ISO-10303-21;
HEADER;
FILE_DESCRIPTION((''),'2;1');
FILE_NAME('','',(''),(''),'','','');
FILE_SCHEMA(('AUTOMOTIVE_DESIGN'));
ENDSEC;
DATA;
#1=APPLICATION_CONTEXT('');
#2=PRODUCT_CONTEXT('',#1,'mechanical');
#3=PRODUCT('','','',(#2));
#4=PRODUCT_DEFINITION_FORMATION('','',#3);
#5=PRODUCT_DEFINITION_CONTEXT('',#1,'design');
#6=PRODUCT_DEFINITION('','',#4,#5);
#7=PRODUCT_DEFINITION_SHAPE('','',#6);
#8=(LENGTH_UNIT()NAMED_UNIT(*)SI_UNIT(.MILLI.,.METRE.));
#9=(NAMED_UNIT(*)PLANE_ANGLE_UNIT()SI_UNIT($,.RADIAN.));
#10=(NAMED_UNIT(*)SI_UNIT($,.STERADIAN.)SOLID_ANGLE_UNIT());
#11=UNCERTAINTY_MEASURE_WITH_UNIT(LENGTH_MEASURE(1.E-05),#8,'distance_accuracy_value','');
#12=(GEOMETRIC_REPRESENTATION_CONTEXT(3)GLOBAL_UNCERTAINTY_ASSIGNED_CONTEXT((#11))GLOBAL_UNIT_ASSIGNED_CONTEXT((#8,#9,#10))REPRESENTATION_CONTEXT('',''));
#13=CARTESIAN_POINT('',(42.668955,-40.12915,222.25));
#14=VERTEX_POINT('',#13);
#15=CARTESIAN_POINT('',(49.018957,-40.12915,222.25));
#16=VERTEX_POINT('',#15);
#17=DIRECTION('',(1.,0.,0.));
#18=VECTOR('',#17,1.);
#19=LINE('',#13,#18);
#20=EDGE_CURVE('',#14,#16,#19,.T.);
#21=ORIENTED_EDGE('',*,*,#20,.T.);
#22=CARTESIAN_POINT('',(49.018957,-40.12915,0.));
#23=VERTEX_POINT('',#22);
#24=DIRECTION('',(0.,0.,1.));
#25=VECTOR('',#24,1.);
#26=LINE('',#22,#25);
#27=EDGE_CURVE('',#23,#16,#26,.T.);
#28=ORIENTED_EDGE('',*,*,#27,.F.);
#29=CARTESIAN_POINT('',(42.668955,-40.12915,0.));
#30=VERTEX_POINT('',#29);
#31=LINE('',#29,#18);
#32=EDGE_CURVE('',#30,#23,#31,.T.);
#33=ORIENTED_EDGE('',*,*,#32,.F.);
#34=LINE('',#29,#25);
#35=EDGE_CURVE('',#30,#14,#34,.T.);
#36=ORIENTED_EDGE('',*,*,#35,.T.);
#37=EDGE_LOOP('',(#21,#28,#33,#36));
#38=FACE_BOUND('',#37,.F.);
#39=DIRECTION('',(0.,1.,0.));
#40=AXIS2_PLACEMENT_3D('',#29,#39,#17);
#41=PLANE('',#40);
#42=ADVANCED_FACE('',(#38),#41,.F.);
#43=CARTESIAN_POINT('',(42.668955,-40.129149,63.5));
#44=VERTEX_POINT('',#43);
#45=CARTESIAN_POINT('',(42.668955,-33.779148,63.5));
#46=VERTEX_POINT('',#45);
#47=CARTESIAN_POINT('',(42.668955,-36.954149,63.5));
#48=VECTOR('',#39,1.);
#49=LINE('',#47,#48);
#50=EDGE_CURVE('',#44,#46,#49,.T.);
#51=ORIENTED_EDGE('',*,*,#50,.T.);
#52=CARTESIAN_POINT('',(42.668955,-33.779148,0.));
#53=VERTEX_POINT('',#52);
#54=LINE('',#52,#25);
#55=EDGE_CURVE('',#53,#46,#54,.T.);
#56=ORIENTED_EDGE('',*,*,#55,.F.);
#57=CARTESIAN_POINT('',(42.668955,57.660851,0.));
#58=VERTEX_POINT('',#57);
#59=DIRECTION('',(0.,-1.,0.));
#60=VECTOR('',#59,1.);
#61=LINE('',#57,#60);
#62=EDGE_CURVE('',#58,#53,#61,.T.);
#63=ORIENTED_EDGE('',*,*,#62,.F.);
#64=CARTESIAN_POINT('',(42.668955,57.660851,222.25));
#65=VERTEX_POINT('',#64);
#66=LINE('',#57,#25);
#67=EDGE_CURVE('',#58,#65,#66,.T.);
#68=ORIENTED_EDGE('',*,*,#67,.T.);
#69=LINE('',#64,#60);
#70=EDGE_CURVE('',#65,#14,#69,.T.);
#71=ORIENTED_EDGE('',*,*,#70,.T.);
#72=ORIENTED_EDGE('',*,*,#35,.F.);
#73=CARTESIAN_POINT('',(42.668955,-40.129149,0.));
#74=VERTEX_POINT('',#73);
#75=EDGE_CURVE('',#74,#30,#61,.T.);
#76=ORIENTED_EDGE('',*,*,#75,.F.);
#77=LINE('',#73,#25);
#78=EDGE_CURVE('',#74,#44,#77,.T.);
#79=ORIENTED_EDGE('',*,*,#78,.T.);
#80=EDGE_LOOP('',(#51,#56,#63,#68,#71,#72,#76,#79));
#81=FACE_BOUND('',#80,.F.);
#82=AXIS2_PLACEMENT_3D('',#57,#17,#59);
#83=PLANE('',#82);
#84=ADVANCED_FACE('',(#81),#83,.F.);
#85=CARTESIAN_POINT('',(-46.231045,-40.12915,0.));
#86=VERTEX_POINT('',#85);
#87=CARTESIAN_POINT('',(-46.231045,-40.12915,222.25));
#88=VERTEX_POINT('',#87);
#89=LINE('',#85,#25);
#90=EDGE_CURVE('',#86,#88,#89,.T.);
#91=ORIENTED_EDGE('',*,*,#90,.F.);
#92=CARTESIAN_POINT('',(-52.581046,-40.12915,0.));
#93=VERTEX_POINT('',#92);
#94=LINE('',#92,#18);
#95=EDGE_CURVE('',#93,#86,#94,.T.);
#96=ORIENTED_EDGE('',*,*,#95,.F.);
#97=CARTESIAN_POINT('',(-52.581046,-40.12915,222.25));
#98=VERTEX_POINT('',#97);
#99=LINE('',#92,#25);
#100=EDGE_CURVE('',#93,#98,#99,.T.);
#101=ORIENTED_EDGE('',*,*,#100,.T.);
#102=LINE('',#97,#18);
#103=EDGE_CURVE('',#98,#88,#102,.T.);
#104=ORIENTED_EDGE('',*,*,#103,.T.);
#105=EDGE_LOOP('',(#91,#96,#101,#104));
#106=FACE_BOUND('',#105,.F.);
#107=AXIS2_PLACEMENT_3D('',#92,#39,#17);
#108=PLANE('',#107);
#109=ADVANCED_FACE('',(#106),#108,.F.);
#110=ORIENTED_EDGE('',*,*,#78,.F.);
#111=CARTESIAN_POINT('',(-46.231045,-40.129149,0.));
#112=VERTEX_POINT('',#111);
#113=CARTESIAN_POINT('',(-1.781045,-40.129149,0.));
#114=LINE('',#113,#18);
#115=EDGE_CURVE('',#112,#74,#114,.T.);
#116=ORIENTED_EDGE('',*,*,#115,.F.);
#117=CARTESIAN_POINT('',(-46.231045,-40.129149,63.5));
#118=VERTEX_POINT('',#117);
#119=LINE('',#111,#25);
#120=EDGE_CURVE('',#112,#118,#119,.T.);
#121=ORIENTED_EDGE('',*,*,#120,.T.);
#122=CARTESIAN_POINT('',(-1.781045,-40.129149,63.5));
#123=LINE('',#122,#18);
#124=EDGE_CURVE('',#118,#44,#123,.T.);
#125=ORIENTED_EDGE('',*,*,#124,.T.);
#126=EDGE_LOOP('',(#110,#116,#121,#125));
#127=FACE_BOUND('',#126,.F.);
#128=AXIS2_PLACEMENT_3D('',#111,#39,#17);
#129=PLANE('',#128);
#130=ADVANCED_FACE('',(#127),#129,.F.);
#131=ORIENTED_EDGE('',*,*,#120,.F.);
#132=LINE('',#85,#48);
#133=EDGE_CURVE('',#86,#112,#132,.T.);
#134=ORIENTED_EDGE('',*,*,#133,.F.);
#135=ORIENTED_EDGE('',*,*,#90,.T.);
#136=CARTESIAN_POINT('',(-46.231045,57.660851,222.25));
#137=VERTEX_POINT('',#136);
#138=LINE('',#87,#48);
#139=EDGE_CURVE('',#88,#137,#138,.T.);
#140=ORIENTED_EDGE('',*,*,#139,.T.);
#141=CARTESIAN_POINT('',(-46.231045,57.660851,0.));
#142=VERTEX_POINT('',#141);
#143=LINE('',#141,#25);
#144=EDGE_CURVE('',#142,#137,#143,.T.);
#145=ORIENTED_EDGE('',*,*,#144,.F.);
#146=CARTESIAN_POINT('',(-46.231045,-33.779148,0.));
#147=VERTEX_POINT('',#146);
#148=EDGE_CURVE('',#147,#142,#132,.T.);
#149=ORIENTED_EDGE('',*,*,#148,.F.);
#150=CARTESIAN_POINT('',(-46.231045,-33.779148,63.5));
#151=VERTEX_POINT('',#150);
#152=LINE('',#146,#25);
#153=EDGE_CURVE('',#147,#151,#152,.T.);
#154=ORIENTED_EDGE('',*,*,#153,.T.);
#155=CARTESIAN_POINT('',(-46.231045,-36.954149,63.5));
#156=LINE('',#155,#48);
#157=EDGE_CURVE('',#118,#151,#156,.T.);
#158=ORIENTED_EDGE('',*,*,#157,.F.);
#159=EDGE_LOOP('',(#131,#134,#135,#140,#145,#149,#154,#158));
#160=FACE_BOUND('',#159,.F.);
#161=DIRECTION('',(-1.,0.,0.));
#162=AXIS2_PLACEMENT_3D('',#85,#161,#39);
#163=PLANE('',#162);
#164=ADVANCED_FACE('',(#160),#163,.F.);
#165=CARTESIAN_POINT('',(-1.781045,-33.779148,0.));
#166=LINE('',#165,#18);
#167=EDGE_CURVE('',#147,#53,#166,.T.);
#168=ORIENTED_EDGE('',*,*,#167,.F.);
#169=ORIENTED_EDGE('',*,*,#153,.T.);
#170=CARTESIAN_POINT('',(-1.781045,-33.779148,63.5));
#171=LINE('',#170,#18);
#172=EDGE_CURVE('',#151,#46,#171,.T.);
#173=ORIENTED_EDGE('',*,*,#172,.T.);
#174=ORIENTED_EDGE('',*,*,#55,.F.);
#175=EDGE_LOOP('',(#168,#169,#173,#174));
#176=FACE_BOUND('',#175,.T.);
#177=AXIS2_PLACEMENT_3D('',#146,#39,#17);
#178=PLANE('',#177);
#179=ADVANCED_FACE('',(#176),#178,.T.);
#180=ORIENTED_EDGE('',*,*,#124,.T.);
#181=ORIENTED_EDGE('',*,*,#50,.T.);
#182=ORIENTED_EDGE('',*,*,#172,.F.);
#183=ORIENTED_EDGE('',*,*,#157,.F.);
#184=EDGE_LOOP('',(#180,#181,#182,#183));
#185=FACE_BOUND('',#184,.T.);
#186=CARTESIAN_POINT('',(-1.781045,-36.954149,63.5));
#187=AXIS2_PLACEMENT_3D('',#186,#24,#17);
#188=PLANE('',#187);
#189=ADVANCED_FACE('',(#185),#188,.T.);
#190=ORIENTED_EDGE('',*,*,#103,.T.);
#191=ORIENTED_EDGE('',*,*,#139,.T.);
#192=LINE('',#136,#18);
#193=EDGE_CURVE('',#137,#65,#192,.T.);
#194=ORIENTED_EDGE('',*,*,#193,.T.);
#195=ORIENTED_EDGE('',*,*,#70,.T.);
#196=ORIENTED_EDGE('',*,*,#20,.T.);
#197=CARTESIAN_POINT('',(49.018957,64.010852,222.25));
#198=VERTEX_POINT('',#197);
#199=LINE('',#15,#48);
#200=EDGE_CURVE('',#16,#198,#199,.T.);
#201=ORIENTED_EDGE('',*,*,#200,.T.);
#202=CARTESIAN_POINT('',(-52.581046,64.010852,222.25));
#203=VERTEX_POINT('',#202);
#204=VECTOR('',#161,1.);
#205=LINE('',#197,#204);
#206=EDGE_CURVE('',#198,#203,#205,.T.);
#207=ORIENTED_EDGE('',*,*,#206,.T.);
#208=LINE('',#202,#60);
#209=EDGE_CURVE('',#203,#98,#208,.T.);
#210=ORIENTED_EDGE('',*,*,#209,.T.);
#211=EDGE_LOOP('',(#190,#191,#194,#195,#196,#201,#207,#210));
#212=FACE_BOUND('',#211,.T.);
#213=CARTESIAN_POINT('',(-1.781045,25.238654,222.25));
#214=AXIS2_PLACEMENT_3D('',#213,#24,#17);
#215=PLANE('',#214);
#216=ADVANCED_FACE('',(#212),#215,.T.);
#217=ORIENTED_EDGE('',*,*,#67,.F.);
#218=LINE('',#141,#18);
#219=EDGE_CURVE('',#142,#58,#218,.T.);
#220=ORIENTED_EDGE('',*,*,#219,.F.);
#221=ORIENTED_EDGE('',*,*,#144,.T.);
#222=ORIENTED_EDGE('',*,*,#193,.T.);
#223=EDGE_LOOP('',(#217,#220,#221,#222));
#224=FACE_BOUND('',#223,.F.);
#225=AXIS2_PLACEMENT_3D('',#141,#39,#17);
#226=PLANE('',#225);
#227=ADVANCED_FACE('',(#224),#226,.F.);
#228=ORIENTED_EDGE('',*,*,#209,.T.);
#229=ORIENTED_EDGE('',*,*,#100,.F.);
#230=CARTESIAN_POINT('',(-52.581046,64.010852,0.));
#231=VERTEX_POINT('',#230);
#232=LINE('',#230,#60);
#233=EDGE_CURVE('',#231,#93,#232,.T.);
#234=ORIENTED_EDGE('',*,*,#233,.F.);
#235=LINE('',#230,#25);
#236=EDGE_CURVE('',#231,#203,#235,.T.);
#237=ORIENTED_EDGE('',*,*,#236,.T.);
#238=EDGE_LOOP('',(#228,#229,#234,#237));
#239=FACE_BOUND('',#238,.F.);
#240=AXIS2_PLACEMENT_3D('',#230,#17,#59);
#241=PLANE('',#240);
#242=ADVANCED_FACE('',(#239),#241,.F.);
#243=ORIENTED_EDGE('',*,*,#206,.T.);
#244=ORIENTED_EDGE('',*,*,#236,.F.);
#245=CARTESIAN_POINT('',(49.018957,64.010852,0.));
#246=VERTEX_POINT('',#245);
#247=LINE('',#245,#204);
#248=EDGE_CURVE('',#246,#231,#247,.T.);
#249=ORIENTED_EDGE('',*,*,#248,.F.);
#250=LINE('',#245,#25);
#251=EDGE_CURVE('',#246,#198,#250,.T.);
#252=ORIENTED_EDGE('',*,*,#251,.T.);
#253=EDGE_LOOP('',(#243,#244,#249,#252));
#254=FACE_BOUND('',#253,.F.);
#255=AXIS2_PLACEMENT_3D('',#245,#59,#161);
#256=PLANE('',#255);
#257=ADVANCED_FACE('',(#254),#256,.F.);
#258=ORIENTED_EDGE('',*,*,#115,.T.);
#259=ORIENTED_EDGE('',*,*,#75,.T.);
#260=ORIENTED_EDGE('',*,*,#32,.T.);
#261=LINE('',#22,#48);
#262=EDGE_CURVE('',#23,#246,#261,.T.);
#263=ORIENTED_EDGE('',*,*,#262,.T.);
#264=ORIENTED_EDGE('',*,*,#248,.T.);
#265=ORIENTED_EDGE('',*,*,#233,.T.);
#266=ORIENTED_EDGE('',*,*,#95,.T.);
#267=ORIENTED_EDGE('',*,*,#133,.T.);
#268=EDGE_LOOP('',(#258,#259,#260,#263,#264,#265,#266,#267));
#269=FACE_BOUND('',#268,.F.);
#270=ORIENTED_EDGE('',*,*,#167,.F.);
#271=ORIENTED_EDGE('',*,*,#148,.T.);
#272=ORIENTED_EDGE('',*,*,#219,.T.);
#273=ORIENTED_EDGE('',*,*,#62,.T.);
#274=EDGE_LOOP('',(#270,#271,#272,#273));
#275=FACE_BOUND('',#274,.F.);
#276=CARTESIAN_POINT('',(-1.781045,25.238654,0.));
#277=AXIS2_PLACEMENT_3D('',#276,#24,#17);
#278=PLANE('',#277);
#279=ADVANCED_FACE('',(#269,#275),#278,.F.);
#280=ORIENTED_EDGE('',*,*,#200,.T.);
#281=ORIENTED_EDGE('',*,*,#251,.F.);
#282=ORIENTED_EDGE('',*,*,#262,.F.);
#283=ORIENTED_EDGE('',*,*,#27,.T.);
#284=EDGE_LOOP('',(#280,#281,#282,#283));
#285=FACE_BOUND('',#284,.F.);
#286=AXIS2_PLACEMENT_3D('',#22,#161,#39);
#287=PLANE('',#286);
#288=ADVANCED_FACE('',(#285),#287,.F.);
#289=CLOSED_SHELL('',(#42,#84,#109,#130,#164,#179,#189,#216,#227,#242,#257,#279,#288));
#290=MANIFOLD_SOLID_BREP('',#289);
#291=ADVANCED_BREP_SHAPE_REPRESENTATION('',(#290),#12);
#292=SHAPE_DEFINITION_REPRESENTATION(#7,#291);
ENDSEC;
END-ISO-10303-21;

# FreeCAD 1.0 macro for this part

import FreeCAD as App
import Part
import Sketcher

V = App.Vector
Q = App.Units.Quantity

doc = App.newDocument("Part")
body = doc.addObject("PartDesign::Body", "Body")

# Sketch on XY plane
sketch1 = doc.addObject("Sketcher::SketchObject", "Sketch")
body.addObject(sketch1)
sketch1.AttachmentSupport = (doc.XY_Plane, [""])
sketch1.MapMode = "FlatFace"
sketch1.addGeometry(Part.LineSegment(V(-46, -34, 0), V(-46, -40, 0)), False)
sketch1.addGeometry(Part.LineSegment(V(-46, -40, 0), V(43, -40, 0)), False)
sketch1.addGeometry(Part.LineSegment(V(43, -40, 0), V(43, -34, 0)), False)
sketch1.addGeometry(Part.LineSegment(V(43, -34, 0), V(-46, -34, 0)), False)
sketch1.addConstraint(Sketcher.Constraint("Coincident", 0, 2, 1, 1))
sketch1.addConstraint(Sketcher.Constraint("Coincident", 1, 2, 2, 1))
sketch1.addConstraint(Sketcher.Constraint("Coincident", 2, 2, 3, 1))
sketch1.addConstraint(Sketcher.Constraint("Coincident", 3, 2, 0, 1))
sketch1.addConstraint(Sketcher.Constraint("Vertical", 0))
sketch1.addConstraint(Sketcher.Constraint("Horizontal", 1))
sketch1.addConstraint(Sketcher.Constraint("Vertical", 2))
sketch1.addConstraint(Sketcher.Constraint("Horizontal", 3))
sketch1.addConstraint(Sketcher.Constraint("DistanceX", 1, 1, 1, 2, Q("3.5 in")))
sketch1.addConstraint(Sketcher.Constraint("DistanceY", 0, 2, 0, 1, Q("0.25 in")))
sketch1.addConstraint(Sketcher.Constraint("DistanceY", 0, 2, -1, 1, 40.129149))
sketch1.addConstraint(Sketcher.Constraint("DistanceX", 0, 2, -1, 1, 46.231045))
pad1 = doc.addObject("PartDesign::Pad", "Pad")
body.addObject(pad1)
pad1.Profile = sketch1
pad1.Length = Q("2.5 in")

# Sketch on XY plane
sketch2 = doc.addObject("Sketcher::SketchObject", "Sketch001")
body.addObject(sketch2)
sketch2.AttachmentSupport = (doc.XY_Plane, [""])
sketch2.MapMode = "FlatFace"
sketch2.addGeometry(Part.LineSegment(V(-46, 58, 0), V(43, 58, 0)), False)
sketch2.addGeometry(Part.LineSegment(V(43, 58, 0), V(43, -40, 0)), False)
sketch2.addGeometry(Part.LineSegment(V(43, -40, 0), V(49, -40, 0)), False)
sketch2.addGeometry(Part.LineSegment(V(49, -40, 0), V(49, 64, 0)), False)
sketch2.addGeometry(Part.LineSegment(V(49, 64, 0), V(-53, 64, 0)), False)
sketch2.addGeometry(Part.LineSegment(V(-53, 64, 0), V(-53, -40, 0)), False)
sketch2.addGeometry(Part.LineSegment(V(-53, -40, 0), V(-46, -40, 0)), False)
sketch2.addGeometry(Part.LineSegment(V(-46, -40, 0), V(-46, 58, 0)), False)
sketch2.addConstraint(Sketcher.Constraint("Coincident", 0, 2, 1, 1))
sketch2.addConstraint(Sketcher.Constraint("Coincident", 1, 2, 2, 1))
sketch2.addConstraint(Sketcher.Constraint("Coincident", 2, 2, 3, 1))
sketch2.addConstraint(Sketcher.Constraint("Coincident", 3, 2, 4, 1))
sketch2.addConstraint(Sketcher.Constraint("Coincident", 4, 2, 5, 1))
sketch2.addConstraint(Sketcher.Constraint("Coincident", 5, 2, 6, 1))
sketch2.addConstraint(Sketcher.Constraint("Coincident", 6, 2, 7, 1))
sketch2.addConstraint(Sketcher.Constraint("Coincident", 7, 2, 0, 1))
sketch2.addConstraint(Sketcher.Constraint("Horizontal", 0))
sketch2.addConstraint(Sketcher.Constraint("Vertical", 1))
sketch2.addConstraint(Sketcher.Constraint("Horizontal", 2))
sketch2.addConstraint(Sketcher.Constraint("Vertical", 3))
sketch2.addConstraint(Sketcher.Constraint("Horizontal", 4))
sketch2.addConstraint(Sketcher.Constraint("Vertical", 5))
sketch2.addConstraint(Sketcher.Constraint("Horizontal", 6))
sketch2.addConstraint(Sketcher.Constraint("Vertical", 7))
sketch2.addConstraint(Sketcher.Constraint("Horizontal", 2, 2, 5, 2))
sketch2.addConstraint(Sketcher.Constraint("Equal", 2, 6))
sketch2.addConstraint(Sketcher.Constraint("DistanceX", 4, 2, 4, 1, Q("4.0000001 in")))
sketch2.addConstraint(Sketcher.Constraint("DistanceX", 0, 1, 0, 2, Q("3.5 in")))
sketch2.addConstraint(Sketcher.Constraint("DistanceY", 3, 1, 3, 2, Q("4.1000001 in")))
sketch2.addConstraint(Sketcher.Constraint("DistanceY", 1, 2, 1, 1, Q("3.85 in")))
sketch2.addConstraint(Sketcher.Constraint("DistanceY", -1, 1, 0, 2, 57.660851))
sketch2.addConstraint(Sketcher.Constraint("DistanceX", -1, 1, 0, 2, 42.668955))
pad2 = doc.addObject("PartDesign::Pad", "Pad001")
body.addObject(pad2)
pad2.Profile = sketch2
pad2.Length = Q("8.75 in")

doc.recompute()
